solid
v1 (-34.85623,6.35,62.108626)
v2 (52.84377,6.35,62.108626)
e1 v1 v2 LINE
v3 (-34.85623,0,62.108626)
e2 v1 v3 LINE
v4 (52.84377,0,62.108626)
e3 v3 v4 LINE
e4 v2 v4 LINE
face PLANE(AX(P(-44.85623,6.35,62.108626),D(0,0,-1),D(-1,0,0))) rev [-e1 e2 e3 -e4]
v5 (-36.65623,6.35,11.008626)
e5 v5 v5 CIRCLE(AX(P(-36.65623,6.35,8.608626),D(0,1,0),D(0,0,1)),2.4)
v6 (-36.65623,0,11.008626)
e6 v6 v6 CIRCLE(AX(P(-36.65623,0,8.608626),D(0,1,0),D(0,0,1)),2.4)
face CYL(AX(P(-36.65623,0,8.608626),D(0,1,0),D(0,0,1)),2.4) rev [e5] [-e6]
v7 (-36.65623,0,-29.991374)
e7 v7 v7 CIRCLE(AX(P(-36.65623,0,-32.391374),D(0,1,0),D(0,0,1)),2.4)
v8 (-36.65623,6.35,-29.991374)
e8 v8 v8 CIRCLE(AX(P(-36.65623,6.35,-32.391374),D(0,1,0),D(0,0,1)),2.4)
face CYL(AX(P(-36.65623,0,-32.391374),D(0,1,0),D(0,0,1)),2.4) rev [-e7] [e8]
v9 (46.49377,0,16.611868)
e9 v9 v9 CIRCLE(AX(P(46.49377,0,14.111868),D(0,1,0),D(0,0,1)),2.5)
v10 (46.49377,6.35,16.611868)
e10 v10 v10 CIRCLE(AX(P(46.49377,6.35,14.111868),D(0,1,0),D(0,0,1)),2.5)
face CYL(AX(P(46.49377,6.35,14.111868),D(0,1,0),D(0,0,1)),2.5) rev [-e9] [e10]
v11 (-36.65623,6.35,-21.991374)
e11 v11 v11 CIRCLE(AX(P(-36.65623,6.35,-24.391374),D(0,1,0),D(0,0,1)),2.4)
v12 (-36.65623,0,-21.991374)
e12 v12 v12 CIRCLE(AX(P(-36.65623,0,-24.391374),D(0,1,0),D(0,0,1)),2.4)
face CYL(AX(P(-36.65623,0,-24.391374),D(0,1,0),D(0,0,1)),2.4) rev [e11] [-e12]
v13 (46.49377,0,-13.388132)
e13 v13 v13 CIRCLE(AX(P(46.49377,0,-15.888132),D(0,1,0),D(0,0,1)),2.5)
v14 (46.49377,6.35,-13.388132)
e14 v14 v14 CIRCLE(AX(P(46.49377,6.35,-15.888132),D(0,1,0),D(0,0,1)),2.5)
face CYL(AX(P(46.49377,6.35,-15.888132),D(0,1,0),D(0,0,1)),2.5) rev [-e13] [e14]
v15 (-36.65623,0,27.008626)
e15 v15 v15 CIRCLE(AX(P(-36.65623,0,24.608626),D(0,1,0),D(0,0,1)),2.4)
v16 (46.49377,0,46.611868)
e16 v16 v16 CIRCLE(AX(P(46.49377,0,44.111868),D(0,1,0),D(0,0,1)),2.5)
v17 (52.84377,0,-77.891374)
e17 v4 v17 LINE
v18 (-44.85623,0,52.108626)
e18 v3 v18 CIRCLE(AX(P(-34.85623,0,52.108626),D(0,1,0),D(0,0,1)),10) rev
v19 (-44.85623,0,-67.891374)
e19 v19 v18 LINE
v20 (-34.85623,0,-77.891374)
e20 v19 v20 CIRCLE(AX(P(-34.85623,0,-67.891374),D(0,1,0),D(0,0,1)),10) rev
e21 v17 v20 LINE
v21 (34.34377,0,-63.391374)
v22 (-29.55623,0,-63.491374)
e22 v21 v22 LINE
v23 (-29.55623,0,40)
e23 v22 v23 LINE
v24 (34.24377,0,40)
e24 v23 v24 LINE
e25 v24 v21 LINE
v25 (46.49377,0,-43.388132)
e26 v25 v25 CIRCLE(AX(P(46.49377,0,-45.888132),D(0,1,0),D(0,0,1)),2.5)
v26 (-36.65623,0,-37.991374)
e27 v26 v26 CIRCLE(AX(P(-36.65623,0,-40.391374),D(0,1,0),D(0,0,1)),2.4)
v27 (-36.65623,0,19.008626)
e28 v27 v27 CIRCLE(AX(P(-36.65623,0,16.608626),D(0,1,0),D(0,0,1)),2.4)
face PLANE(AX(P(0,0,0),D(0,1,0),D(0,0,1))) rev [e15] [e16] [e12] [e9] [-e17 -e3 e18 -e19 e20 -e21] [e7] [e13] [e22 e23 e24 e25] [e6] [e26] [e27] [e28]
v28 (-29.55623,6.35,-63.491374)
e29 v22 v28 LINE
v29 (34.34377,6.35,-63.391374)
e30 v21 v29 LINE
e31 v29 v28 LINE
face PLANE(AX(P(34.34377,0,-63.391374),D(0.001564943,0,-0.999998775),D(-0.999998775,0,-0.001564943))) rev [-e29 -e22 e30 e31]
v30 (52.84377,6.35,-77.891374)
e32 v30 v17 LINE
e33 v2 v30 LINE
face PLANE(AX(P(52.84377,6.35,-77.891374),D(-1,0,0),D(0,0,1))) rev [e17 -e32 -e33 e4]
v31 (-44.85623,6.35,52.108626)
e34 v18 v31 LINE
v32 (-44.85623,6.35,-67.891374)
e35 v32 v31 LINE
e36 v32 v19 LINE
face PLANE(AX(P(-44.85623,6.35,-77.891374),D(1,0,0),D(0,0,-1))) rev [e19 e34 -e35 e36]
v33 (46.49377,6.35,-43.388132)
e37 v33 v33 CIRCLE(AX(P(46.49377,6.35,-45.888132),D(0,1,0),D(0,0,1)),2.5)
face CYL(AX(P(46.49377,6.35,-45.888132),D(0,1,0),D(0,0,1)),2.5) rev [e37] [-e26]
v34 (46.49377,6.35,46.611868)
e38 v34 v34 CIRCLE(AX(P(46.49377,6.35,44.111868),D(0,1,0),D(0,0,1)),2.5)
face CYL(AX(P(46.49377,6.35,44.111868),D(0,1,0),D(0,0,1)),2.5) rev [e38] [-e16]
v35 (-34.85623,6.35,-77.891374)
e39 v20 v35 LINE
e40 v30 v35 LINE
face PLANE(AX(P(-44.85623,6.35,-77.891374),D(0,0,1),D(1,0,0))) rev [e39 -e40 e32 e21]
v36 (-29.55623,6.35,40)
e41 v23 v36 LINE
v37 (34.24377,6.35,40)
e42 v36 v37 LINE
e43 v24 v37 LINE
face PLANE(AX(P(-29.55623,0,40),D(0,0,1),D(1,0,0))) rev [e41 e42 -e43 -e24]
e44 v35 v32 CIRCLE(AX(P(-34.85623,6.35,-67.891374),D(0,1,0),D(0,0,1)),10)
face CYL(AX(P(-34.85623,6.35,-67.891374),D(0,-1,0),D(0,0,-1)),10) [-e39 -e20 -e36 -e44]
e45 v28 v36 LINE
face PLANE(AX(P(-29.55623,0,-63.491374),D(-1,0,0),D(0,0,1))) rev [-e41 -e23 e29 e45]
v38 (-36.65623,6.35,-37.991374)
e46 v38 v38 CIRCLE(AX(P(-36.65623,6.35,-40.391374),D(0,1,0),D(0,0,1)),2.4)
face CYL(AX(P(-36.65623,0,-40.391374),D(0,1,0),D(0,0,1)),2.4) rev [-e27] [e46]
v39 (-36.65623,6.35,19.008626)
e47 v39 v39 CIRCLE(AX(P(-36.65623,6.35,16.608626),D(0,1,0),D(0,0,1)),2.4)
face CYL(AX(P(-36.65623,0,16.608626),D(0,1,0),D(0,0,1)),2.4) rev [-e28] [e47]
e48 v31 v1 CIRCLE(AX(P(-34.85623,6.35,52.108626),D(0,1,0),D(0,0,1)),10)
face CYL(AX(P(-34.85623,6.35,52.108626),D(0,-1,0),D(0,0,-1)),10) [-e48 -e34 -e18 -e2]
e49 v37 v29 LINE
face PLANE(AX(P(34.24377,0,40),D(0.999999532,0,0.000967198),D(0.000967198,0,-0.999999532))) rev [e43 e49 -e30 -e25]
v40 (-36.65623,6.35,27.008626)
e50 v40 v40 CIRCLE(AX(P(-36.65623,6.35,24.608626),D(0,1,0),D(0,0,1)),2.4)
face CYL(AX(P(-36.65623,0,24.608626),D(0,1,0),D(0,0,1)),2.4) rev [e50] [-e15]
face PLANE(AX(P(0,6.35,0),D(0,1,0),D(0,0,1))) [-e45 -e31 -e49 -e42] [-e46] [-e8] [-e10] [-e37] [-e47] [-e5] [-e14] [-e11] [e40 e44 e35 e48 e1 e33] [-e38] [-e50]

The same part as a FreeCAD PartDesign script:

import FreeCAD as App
import Part
import Sketcher
Q = App.Units.Quantity


def edges_at(feature, points):
    """Names of the edges that pass closest to the given points."""
    edges = feature.Shape.Edges
    near = lambda p: min(range(len(edges)), key=lambda i: edges[i].distToShape(Part.Vertex(*p))[0])
    return sorted({f"Edge{near(p) + 1}" for p in points})

doc = App.newDocument("Part")
body = doc.addObject("PartDesign::Body", "Body")

# Sketch on XZ plane
sketch1 = body.newObject("Sketcher::SketchObject", "Sketch")
sketch1.AttachmentSupport = (doc.getObject("XZ_Plane"), [""])
sketch1.MapMode = "FlatFace"
sketch1.addGeometry(Part.LineSegment(App.Vector(-45, -78, 0), App.Vector(-45, 62, 0)), False)
sketch1.addGeometry(Part.LineSegment(App.Vector(-45, 62, 0), App.Vector(53, 62, 0)), False)
sketch1.addGeometry(Part.LineSegment(App.Vector(53, 62, 0), App.Vector(53, -78, 0)), False)
sketch1.addGeometry(Part.LineSegment(App.Vector(53, -78, 0), App.Vector(-45, -78, 0)), False)
sketch1.addConstraint(Sketcher.Constraint("Coincident", 0, 2, 1, 1))
sketch1.addConstraint(Sketcher.Constraint("Coincident", 1, 2, 2, 1))
sketch1.addConstraint(Sketcher.Constraint("Coincident", 2, 2, 3, 1))
sketch1.addConstraint(Sketcher.Constraint("Coincident", 3, 2, 0, 1))
sketch1.addConstraint(Sketcher.Constraint("Vertical", 0))
sketch1.addConstraint(Sketcher.Constraint("Horizontal", 1))
sketch1.addConstraint(Sketcher.Constraint("Vertical", 2))
sketch1.addConstraint(Sketcher.Constraint("Horizontal", 3))
sketch1.addConstraint(Sketcher.Constraint("DistanceY", 0, 1, 0, 2, Q("140 mm")))
sketch1.addConstraint(Sketcher.Constraint("DistanceX", 1, 1, 1, 2, Q("97.7 mm")))
sketch1.addConstraint(Sketcher.Constraint("DistanceX", 0, 2, -1, 1, Q("44.85623 mm")))
sketch1.addConstraint(Sketcher.Constraint("DistanceY", -1, 1, 0, 2, Q("62.108626 mm")))
pad1 = body.newObject("PartDesign::Pad", "Pad")
pad1.Profile = sketch1
pad1.Length = 6.35
pad1.Reversed = True
doc.recompute()

fillet = body.newObject("PartDesign::Fillet", "Fillet")
fillet.Base = (pad1, edges_at(pad1, [(-44.856, 3.175, -77.891), (-44.856, 3.175, 62.109)]))
fillet.Radius = 10

# Sketch on XZ plane
sketch2 = body.newObject("Sketcher::SketchObject", "Sketch001")
sketch2.AttachmentSupport = (doc.getObject("XZ_Plane"), [""])
sketch2.MapMode = "FlatFace"
sketch2.AttachmentOffset = App.Placement(App.Vector(0, 0, -6.35), App.Rotation())
sketch2.addGeometry(Part.LineSegment(App.Vector(-30, -63, 0), App.Vector(-30, 40, 0)), False)
sketch2.addGeometry(Part.LineSegment(App.Vector(-30, 40, 0), App.Vector(34, 40, 0)), False)
sketch2.addGeometry(Part.LineSegment(App.Vector(34, 40, 0), App.Vector(34, -63, 0)), False)
sketch2.addGeometry(Part.LineSegment(App.Vector(34, -63, 0), App.Vector(-30, -63, 0)), False)
sketch2.addConstraint(Sketcher.Constraint("Coincident", 0, 2, 1, 1))
sketch2.addConstraint(Sketcher.Constraint("Coincident", 1, 2, 2, 1))
sketch2.addConstraint(Sketcher.Constraint("Coincident", 2, 2, 3, 1))
sketch2.addConstraint(Sketcher.Constraint("Coincident", 3, 2, 0, 1))
sketch2.addConstraint(Sketcher.Constraint("Vertical", 0))
sketch2.addConstraint(Sketcher.Constraint("Horizontal", 1))
sketch2.addConstraint(Sketcher.Constraint("DistanceX", 1, 1, 1, 2, Q("63.8 mm")))
sketch2.addConstraint(Sketcher.Constraint("DistanceY", -1, 1, 0, 2, Q("40 mm")))
sketch2.addConstraint(Sketcher.Constraint("DistanceX", 1, 2, 2, 2, Q("0.1 mm")))
sketch2.addConstraint(Sketcher.Constraint("DistanceY", 3, 2, 2, 2, Q("0.1 mm")))
sketch2.addConstraint(Sketcher.Constraint("DistanceY", 0, 1, 0, 2, Q("103.491374 mm")))
sketch2.addConstraint(Sketcher.Constraint("DistanceX", 0, 2, -1, 1, Q("29.55623 mm")))
pocket1 = body.newObject("PartDesign::Pocket", "Pocket")
pocket1.Profile = sketch2
pocket1.Length = 6.35
pocket1.Reversed = True

# Sketch on XZ plane
sketch3 = body.newObject("Sketcher::SketchObject", "Sketch002")
sketch3.AttachmentSupport = (doc.getObject("XZ_Plane"), [""])
sketch3.MapMode = "FlatFace"
sketch3.AttachmentOffset = App.Placement(App.Vector(0, 0, -6.35), App.Rotation())
sketch3.addGeometry(Part.Circle(App.Vector(-36.7, -40.4, 0), App.Vector(0, 0, 1), 2.4), False)
sketch3.addGeometry(Part.Circle(App.Vector(-36.7, -24.4, 0), App.Vector(0, 0, 1), 2.4), False)
sketch3.addGeometry(Part.Circle(App.Vector(-36.7, 8.6, 0), App.Vector(0, 0, 1), 2.4), False)
sketch3.addGeometry(Part.Circle(App.Vector(-36.7, 24.6, 0), App.Vector(0, 0, 1), 2.4), False)
sketch3.addGeometry(Part.Circle(App.Vector(-36.7, 16.6, 0), App.Vector(0, 0, 1), 2.4), False)
sketch3.addGeometry(Part.Circle(App.Vector(-36.7, -32.4, 0), App.Vector(0, 0, 1), 2.4), False)
sketch3.addConstraint(Sketcher.Constraint("Equal", 0, 1))
sketch3.addConstraint(Sketcher.Constraint("Equal", 1, 2))
sketch3.addConstraint(Sketcher.Constraint("Equal", 2, 3))
sketch3.addConstraint(Sketcher.Constraint("Equal", 3, 4))
sketch3.addConstraint(Sketcher.Constraint("Equal", 4, 5))
sketch3.addConstraint(Sketcher.Constraint("Vertical", 0, 3, 1, 3))
sketch3.addConstraint(Sketcher.Constraint("Vertical", 1, 3, 2, 3))
sketch3.addConstraint(Sketcher.Constraint("Vertical", 2, 3, 3, 3))
sketch3.addConstraint(Sketcher.Constraint("Vertical", 3, 3, 4, 3))
sketch3.addConstraint(Sketcher.Constraint("Vertical", 4, 3, 5, 3))
sketch3.addConstraint(Sketcher.Constraint("Diameter", 0, Q("4.8 mm")))
sketch3.addConstraint(Sketcher.Constraint("DistanceY", 0, 3, 1, 3, Q("16 mm")))
sketch3.addConstraint(Sketcher.Constraint("DistanceY", 1, 3, 2, 3, Q("33 mm")))
sketch3.addConstraint(Sketcher.Constraint("DistanceY", 2, 3, 3, 3, Q("16 mm")))
sketch3.addConstraint(Sketcher.Constraint("DistanceY", 2, 3, 4, 3, Q("8 mm")))
sketch3.addConstraint(Sketcher.Constraint("DistanceY", 5, 3, 1, 3, Q("8 mm")))
sketch3.addConstraint(Sketcher.Constraint("DistanceX", 0, 3, -1, 1, Q("36.65623 mm")))
sketch3.addConstraint(Sketcher.Constraint("DistanceY", 0, 3, -1, 1, Q("40.391374 mm")))
pocket2 = body.newObject("PartDesign::Pocket", "Pocket001")
pocket2.Profile = sketch3
pocket2.Length = 6.35
pocket2.Reversed = True

# Sketch on XZ plane
sketch4 = body.newObject("Sketcher::SketchObject", "Sketch003")
sketch4.AttachmentSupport = (doc.getObject("XZ_Plane"), [""])
sketch4.MapMode = "FlatFace"
sketch4.AttachmentOffset = App.Placement(App.Vector(0, 0, -6.35), App.Rotation())
sketch4.addGeometry(Part.Circle(App.Vector(46.5, -45.9, 0), App.Vector(0, 0, 1), 2.5), False)
sketch4.addGeometry(Part.Circle(App.Vector(46.5, -15.9, 0), App.Vector(0, 0, 1), 2.5), False)
sketch4.addGeometry(Part.Circle(App.Vector(46.5, 14.1, 0), App.Vector(0, 0, 1), 2.5), False)
sketch4.addGeometry(Part.Circle(App.Vector(46.5, 44.1, 0), App.Vector(0, 0, 1), 2.5), False)
sketch4.addConstraint(Sketcher.Constraint("Equal", 0, 1))
sketch4.addConstraint(Sketcher.Constraint("Equal", 1, 2))
sketch4.addConstraint(Sketcher.Constraint("Equal", 2, 3))
sketch4.addConstraint(Sketcher.Constraint("Vertical", 0, 3, 1, 3))
sketch4.addConstraint(Sketcher.Constraint("Vertical", 1, 3, 2, 3))
sketch4.addConstraint(Sketcher.Constraint("Vertical", 2, 3, 3, 3))
sketch4.addConstraint(Sketcher.Constraint("Diameter", 0, Q("5 mm")))
sketch4.addConstraint(Sketcher.Constraint("DistanceY", 0, 3, 1, 3, Q("30 mm")))
sketch4.addConstraint(Sketcher.Constraint("DistanceY", 1, 3, 2, 3, Q("30 mm")))
sketch4.addConstraint(Sketcher.Constraint("DistanceY", 2, 3, 3, 3, Q("30 mm")))
sketch4.addConstraint(Sketcher.Constraint("DistanceX", -1, 1, 0, 3, Q("46.49377 mm")))
sketch4.addConstraint(Sketcher.Constraint("DistanceY", 0, 3, -1, 1, Q("45.888132 mm")))
doc.recompute()
hole = body.newObject("PartDesign::Hole", "Hole")
hole.Profile = sketch4
hole.ThreadType = "None"
hole.Diameter = 5
hole.DepthType = "Dimension"
hole.Depth = 10
hole.DrillPoint = "Angled"
hole.DrillPointAngle = 118
hole.Reversed = True

doc.recompute()
